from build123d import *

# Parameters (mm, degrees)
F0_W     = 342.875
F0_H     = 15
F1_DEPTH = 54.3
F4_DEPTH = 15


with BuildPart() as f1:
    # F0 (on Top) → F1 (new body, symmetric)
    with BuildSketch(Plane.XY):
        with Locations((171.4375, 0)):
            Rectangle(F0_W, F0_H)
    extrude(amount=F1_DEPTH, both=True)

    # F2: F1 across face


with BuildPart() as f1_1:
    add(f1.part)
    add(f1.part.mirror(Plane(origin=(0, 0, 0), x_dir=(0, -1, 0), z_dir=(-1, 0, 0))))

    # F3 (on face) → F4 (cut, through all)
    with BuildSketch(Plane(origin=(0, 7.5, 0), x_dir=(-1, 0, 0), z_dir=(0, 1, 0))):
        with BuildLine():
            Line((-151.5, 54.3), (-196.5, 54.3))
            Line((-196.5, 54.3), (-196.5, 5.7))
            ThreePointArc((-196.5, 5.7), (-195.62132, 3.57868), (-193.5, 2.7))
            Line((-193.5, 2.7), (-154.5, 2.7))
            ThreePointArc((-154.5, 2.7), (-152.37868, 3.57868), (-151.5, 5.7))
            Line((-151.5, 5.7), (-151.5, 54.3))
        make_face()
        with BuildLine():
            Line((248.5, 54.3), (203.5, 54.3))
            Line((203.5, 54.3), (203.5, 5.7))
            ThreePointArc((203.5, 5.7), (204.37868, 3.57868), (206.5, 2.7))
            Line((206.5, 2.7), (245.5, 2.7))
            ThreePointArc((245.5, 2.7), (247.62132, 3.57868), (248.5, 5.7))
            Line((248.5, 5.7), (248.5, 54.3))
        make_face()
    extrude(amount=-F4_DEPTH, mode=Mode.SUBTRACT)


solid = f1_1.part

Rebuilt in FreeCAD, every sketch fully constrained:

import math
import FreeCAD as App
import Part
import Sketcher

doc = App.newDocument("Part")
body = doc.addObject("PartDesign::Body", "Body")

# Sketch on XY plane
sketch1 = body.newObject("Sketcher::SketchObject", "Sketch")
sketch1.AttachmentSupport = (doc.getObject("XY_Plane"), [""])
sketch1.MapMode = "FlatFace"
sketch1.addGeometry([
    Part.LineSegment(App.Vector(0, 7.5, 0), App.Vector(0, -7.5, 0)),
    Part.LineSegment(App.Vector(0, -7.5, 0), App.Vector(342.875, -7.5, 0)),
    Part.LineSegment(App.Vector(342.875, -7.5, 0), App.Vector(342.875, 7.5, 0)),
    Part.LineSegment(App.Vector(342.875, 7.5, 0), App.Vector(0, 7.5, 0)),
], False)
sketch1.addConstraint([
    Sketcher.Constraint("Coincident", 0, 2, 1, 1),
    Sketcher.Constraint("Coincident", 1, 2, 2, 1),
    Sketcher.Constraint("Coincident", 2, 2, 3, 1),
    Sketcher.Constraint("Coincident", 3, 2, 0, 1),
    Sketcher.Constraint("Vertical", 0),
    Sketcher.Constraint("Horizontal", 1),
    Sketcher.Constraint("Vertical", 2),
    Sketcher.Constraint("Horizontal", 3),
    Sketcher.Constraint("Symmetric", 0, 2, 3, 2, -1, 1),
    Sketcher.Constraint("DistanceY", 0, 2, 0, 1, 15.0),
    Sketcher.Constraint("DistanceX", 1, 1, 1, 2, 342.875),
])
pad1 = body.newObject("PartDesign::Pad", "Pad")
pad1.Profile = sketch1
pad1.Length = 108.6
pad1.Midplane = True
body2 = doc.addObject("PartDesign::Body", "Body001")
doc.recompute()

body2.BaseFeature = body
doc.recompute()

mirroring = doc.addObject("Part::Mirroring", "Mirroring")
mirroring.Source = body
mirroring.Base = App.Vector(0, 0, 0)
mirroring.Normal = App.Vector(-1, 0, 0)
body3 = doc.addObject("PartDesign::Body", "Body002")
body3.BaseFeature = mirroring
boolean = body2.newObject("PartDesign::Boolean", "Boolean")
boolean.Type = "Fuse"
boolean.addObjects([body3])
doc.recompute()

# Sketch on XZ plane
sketch2 = body2.newObject("Sketcher::SketchObject", "Sketch001")
sketch2.AttachmentSupport = (doc.getObject("XZ_Plane001"), [""])
sketch2.MapMode = "FlatFace"
sketch2.AttachmentOffset = App.Placement(App.Vector(0, 0, -7.5), App.Rotation())
sketch2.addGeometry([
    Part.LineSegment(App.Vector(151.5, 54.3, 0), App.Vector(196.5, 54.3, 0)),  # 0
    Part.LineSegment(App.Vector(196.5, 54.3, 0), App.Vector(196.5, 5.7, 0)),  # 1
    Part.ArcOfCircle(Part.Circle(App.Vector(193.499999, 5.700001, 0), App.Vector(0, 0, 1), 3.000001), math.radians(-89.999978), math.radians(-0.000022)),  # 2
    Part.LineSegment(App.Vector(193.5, 2.7, 0), App.Vector(154.5, 2.7, 0)),  # 3
    Part.ArcOfCircle(Part.Circle(App.Vector(154.500001, 5.700001, 0), App.Vector(0, 0, 1), 3.000001), math.radians(-179.999978), math.radians(-90.000022)),  # 4
    Part.LineSegment(App.Vector(151.5, 5.7, 0), App.Vector(151.5, 54.3, 0)),  # 5
    Part.LineSegment(App.Vector(-248.5, 54.3, 0), App.Vector(-203.5, 54.3, 0)),  # 6
    Part.LineSegment(App.Vector(-203.5, 54.3, 0), App.Vector(-203.5, 5.7, 0)),  # 7
    Part.ArcOfCircle(Part.Circle(App.Vector(-206.500001, 5.700001, 0), App.Vector(0, 0, 1), 3.000001), math.radians(-89.999978), math.radians(-0.000022)),  # 8
    Part.LineSegment(App.Vector(-206.5, 2.7, 0), App.Vector(-245.5, 2.7, 0)),  # 9
    Part.ArcOfCircle(Part.Circle(App.Vector(-245.499999, 5.700001, 0), App.Vector(0, 0, 1), 3.000001), math.radians(-179.999978), math.radians(-90.000022)),  # 10
    Part.LineSegment(App.Vector(-248.5, 5.7, 0), App.Vector(-248.5, 54.3, 0)),  # 11
], False)
sketch2.addConstraint([
    Sketcher.Constraint("Coincident", 0, 2, 1, 1),
    Sketcher.Constraint("Tangent", 1, 2, 2, 2),
    Sketcher.Constraint("Tangent", 2, 1, 3, 1),
    Sketcher.Constraint("Tangent", 3, 2, 4, 2),
    Sketcher.Constraint("Tangent", 4, 1, 5, 1),
    Sketcher.Constraint("Coincident", 5, 2, 0, 1),
    Sketcher.Constraint("Coincident", 6, 2, 7, 1),
    Sketcher.Constraint("Tangent", 7, 2, 8, 2),
    Sketcher.Constraint("Tangent", 8, 1, 9, 1),
    Sketcher.Constraint("Tangent", 9, 2, 10, 2),
    Sketcher.Constraint("Tangent", 10, 1, 11, 1),
    Sketcher.Constraint("Coincident", 11, 2, 6, 1),
    Sketcher.Constraint("Horizontal", 0),
    Sketcher.Constraint("Vertical", 1),
    Sketcher.Constraint("Horizontal", 3),
    Sketcher.Constraint("Vertical", 5),
    Sketcher.Constraint("Horizontal", 6),
    Sketcher.Constraint("Vertical", 7),
    Sketcher.Constraint("Horizontal", 9),
    Sketcher.Constraint("Vertical", 11),
    Sketcher.Constraint("Equal", 2, 4),
    Sketcher.Constraint("Equal", 4, 8),
    Sketcher.Constraint("Equal", 8, 10),
    Sketcher.Constraint("Horizontal", 4, 3, 8, 3),
    Sketcher.Constraint("Horizontal", 5, 2, 6, 2),
    Sketcher.Constraint("Equal", 0, 6),
    Sketcher.Constraint("Radius", 2, 3.000001),
    Sketcher.Constraint("DistanceX", 0, 1, 0, 2, 45.0),
    Sketcher.Constraint("DistanceY", 1, 2, 1, 1, 48.6),
    Sketcher.Constraint("DistanceX", 8, 3, 2, 3, 400.0),
    Sketcher.Constraint("DistanceX", -1, 1, 2, 3, 193.499999),
    Sketcher.Constraint("DistanceY", -1, 1, 2, 3, 5.700001),
])
pocket1 = body2.newObject("PartDesign::Pocket", "Pocket")
pocket1.Profile = sketch2
pocket1.Type = "ThroughAll"
pocket1.Reversed = True
mirroring.Visibility = False

doc.recompute()
